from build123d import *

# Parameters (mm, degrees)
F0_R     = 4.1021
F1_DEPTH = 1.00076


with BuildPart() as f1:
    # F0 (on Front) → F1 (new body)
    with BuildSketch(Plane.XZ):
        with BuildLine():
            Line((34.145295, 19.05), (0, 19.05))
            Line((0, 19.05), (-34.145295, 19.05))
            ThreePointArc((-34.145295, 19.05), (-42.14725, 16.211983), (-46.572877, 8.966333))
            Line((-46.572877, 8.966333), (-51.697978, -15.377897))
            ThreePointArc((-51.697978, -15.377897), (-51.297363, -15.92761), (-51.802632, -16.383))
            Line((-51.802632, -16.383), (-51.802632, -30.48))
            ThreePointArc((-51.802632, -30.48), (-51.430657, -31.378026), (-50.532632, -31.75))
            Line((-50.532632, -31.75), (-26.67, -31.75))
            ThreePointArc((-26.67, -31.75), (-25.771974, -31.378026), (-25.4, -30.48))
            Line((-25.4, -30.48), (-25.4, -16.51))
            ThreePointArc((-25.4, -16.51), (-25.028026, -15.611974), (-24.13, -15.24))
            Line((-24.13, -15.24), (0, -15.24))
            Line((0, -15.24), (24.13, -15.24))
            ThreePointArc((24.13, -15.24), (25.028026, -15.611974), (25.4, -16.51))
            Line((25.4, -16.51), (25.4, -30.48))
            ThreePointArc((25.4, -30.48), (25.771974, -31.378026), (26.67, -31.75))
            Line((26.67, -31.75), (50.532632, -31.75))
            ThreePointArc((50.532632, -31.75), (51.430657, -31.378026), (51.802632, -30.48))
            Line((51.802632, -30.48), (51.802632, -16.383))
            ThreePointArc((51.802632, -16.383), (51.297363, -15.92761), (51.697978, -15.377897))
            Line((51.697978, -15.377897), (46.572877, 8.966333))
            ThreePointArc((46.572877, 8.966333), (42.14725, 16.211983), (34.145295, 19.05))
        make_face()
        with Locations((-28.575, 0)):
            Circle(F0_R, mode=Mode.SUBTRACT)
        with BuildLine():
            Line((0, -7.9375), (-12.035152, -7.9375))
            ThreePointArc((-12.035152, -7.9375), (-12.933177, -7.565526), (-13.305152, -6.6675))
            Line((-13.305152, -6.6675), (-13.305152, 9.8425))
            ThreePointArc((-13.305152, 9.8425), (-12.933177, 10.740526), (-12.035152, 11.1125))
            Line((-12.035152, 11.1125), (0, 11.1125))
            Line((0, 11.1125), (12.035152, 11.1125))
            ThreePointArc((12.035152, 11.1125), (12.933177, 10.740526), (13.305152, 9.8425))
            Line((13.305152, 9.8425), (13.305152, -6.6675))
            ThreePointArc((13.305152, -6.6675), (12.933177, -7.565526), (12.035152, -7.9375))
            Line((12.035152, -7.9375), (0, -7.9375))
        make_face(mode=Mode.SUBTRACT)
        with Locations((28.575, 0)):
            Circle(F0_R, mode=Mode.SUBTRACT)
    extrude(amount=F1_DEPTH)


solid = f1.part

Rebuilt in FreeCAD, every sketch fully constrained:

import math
import FreeCAD as App
import Part
import Sketcher

V = App.Vector
Q = App.Units.Quantity

doc = App.newDocument("Part")
params = doc.addObject("Spreadsheet::Sheet", "Params")
for row, (alias, value) in enumerate([
    ("sketch1_radius", "0.5 in"),
    ("sketch1_radius2", "0.02 in"),
    ("sketch1_radius3", "0.05 in"),
    ("sketch1_diameter", "0.323 in"),
    ("sketch1_width", "1.9 in"),
    ("pad1_length", "0.0394 in"),
], start=1):
    params.set(f"A{row}", alias)
    params.set(f"B{row}", "=" + value)
    params.setAlias(f"B{row}", alias)

body = doc.addObject("PartDesign::Body", "Body")

# Sketch on XZ plane
sketch1 = body.newObject("Sketcher::SketchObject", "Sketch")
sketch1.AttachmentSupport = (doc.getObject("XZ_Plane"), [""])
sketch1.MapMode = "FlatFace"
sketch1.addGeometry(Part.LineSegment(V(34.145295, 19.05, 0), V(-34.145295, 19.05, 0)), False)
sketch1.addGeometry(Part.ArcOfCircle(Part.Circle(V(-34.145294, 6.35, 0), V(0, 0, 1), 12.7), math.radians(90.000003), math.radians(168.111341)), False)
sketch1.addGeometry(Part.LineSegment(V(-46.572877, 8.966333, 0), V(-51.697978, -15.377897, 0)), False)
sketch1.addGeometry(Part.ArcOfCircle(Part.Circle(V(-51.802631, -15.875, 0), V(0, 0, 1), 0.508), math.radians(-90.000079), math.radians(78.111341)), False)
sketch1.addGeometry(Part.LineSegment(V(-51.802632, -16.383, 0), V(-51.802632, -30.48, 0)), False)
sketch1.addGeometry(Part.ArcOfCircle(Part.Circle(V(-50.532632, -30.48, 0), V(0, 0, 1), 1.27), math.radians(-179.999983), math.radians(-90.000017)), False)
sketch1.addGeometry(Part.LineSegment(V(-50.532632, -31.75, 0), V(-26.67, -31.75, 0)), False)
sketch1.addGeometry(Part.ArcOfCircle(Part.Circle(V(-26.669999, -30.480001, 0), V(0, 0, 1), 1.269999), math.radians(-90.00006), math.radians(0.00006)), False)
sketch1.addGeometry(Part.LineSegment(V(-25.4, -30.48, 0), V(-25.4, -16.51, 0)), False)
sketch1.addGeometry(Part.ArcOfCircle(Part.Circle(V(-24.130001, -16.509999, 0), V(0, 0, 1), 1.269999), math.radians(89.99994), math.radians(180.00006)), False)
sketch1.addGeometry(Part.LineSegment(V(-24.13, -15.24, 0), V(24.13, -15.24, 0)), False)
sketch1.addGeometry(Part.ArcOfCircle(Part.Circle(V(24.130001, -16.509999, 0), V(0, 0, 1), 1.269999), math.radians(-0.00006), math.radians(90.00006)), False)
sketch1.addGeometry(Part.LineSegment(V(25.4, -16.51, 0), V(25.4, -30.48, 0)), False)
sketch1.addGeometry(Part.ArcOfCircle(Part.Circle(V(26.669999, -30.480001, 0), V(0, 0, 1), 1.269999), math.radians(179.99994), math.radians(270.00006)), False)
sketch1.addGeometry(Part.LineSegment(V(26.67, -31.75, 0), V(50.532632, -31.75, 0)), False)
sketch1.addGeometry(Part.ArcOfCircle(Part.Circle(V(50.532632, -30.48, 0), V(0, 0, 1), 1.27), math.radians(-89.999983), math.radians(-0.000017)), False)
sketch1.addGeometry(Part.LineSegment(V(51.802632, -30.48, 0), V(51.802632, -16.383, 0)), False)
sketch1.addGeometry(Part.ArcOfCircle(Part.Circle(V(51.802631, -15.875, 0), V(0, 0, 1), 0.508), math.radians(101.888659), math.radians(270.000079)), False)
sketch1.addGeometry(Part.LineSegment(V(51.697978, -15.377897, 0), V(46.572877, 8.966333, 0)), False)
sketch1.addGeometry(Part.ArcOfCircle(Part.Circle(V(34.145294, 6.35, 0), V(0, 0, 1), 12.7), math.radians(11.888659), math.radians(89.999997)), False)
sketch1.addGeometry(Part.Circle(V(-28.575, 0, 0), V(0, 0, 1), 4.1021), False)
sketch1.addGeometry(Part.Circle(V(28.575, 0, 0), V(0, 0, 1), 4.1021), False)
sketch1.addGeometry(Part.LineSegment(V(12.035152, -7.9375, 0), V(-12.035152, -7.9375, 0)), False)
sketch1.addGeometry(Part.ArcOfCircle(Part.Circle(V(-12.035152, -6.6675, 0), V(0, 0, 1), 1.27), math.radians(-179.999983), math.radians(-90.000017)), False)
sketch1.addGeometry(Part.LineSegment(V(-13.305152, -6.6675, 0), V(-13.305152, 9.8425, 0)), False)
sketch1.addGeometry(Part.ArcOfCircle(Part.Circle(V(-12.035152, 9.8425, 0), V(0, 0, 1), 1.27), math.radians(90.000017), math.radians(179.999983)), False)
sketch1.addGeometry(Part.LineSegment(V(-12.035152, 11.1125, 0), V(12.035152, 11.1125, 0)), False)
sketch1.addGeometry(Part.ArcOfCircle(Part.Circle(V(12.035152, 9.8425, 0), V(0, 0, 1), 1.27), math.radians(0.000017), math.radians(89.999983)), False)
sketch1.addGeometry(Part.LineSegment(V(13.305152, 9.8425, 0), V(13.305152, -6.6675, 0)), False)
sketch1.addGeometry(Part.ArcOfCircle(Part.Circle(V(12.035152, -6.6675, 0), V(0, 0, 1), 1.27), math.radians(-89.999983), math.radians(-0.000017)), False)
sketch1.addConstraint(Sketcher.Constraint("Tangent", 0, 2, 1, 1))
sketch1.addConstraint(Sketcher.Constraint("Tangent", 1, 2, 2, 1))
sketch1.addConstraint(Sketcher.Constraint("Coincident", 2, 2, 3, 2))
sketch1.addConstraint(Sketcher.Constraint("Coincident", 3, 1, 4, 1))
sketch1.addConstraint(Sketcher.Constraint("Tangent", 4, 2, 5, 1))
sketch1.addConstraint(Sketcher.Constraint("Tangent", 5, 2, 6, 1))
sketch1.addConstraint(Sketcher.Constraint("Tangent", 6, 2, 7, 1))
sketch1.addConstraint(Sketcher.Constraint("Tangent", 7, 2, 8, 1))
sketch1.addConstraint(Sketcher.Constraint("Tangent", 8, 2, 9, 2))
sketch1.addConstraint(Sketcher.Constraint("Tangent", 9, 1, 10, 1))
sketch1.addConstraint(Sketcher.Constraint("Tangent", 10, 2, 11, 2))
sketch1.addConstraint(Sketcher.Constraint("Tangent", 11, 1, 12, 1))
sketch1.addConstraint(Sketcher.Constraint("Tangent", 12, 2, 13, 1))
sketch1.addConstraint(Sketcher.Constraint("Tangent", 13, 2, 14, 1))
sketch1.addConstraint(Sketcher.Constraint("Tangent", 14, 2, 15, 1))
sketch1.addConstraint(Sketcher.Constraint("Tangent", 15, 2, 16, 1))
sketch1.addConstraint(Sketcher.Constraint("Coincident", 16, 2, 17, 2))
sketch1.addConstraint(Sketcher.Constraint("Coincident", 17, 1, 18, 1))
sketch1.addConstraint(Sketcher.Constraint("Tangent", 18, 2, 19, 1))
sketch1.addConstraint(Sketcher.Constraint("Tangent", 19, 2, 0, 1))
sketch1.addConstraint(Sketcher.Constraint("Tangent", 22, 2, 23, 2))
sketch1.addConstraint(Sketcher.Constraint("Tangent", 23, 1, 24, 1))
sketch1.addConstraint(Sketcher.Constraint("Tangent", 24, 2, 25, 2))
sketch1.addConstraint(Sketcher.Constraint("Tangent", 25, 1, 26, 1))
sketch1.addConstraint(Sketcher.Constraint("Tangent", 26, 2, 27, 2))
sketch1.addConstraint(Sketcher.Constraint("Tangent", 27, 1, 28, 1))
sketch1.addConstraint(Sketcher.Constraint("Tangent", 28, 2, 29, 2))
sketch1.addConstraint(Sketcher.Constraint("Tangent", 29, 1, 22, 1))
sketch1.addConstraint(Sketcher.Constraint("Horizontal", 0))
sketch1.addConstraint(Sketcher.Constraint("Vertical", 4))
sketch1.addConstraint(Sketcher.Constraint("Horizontal", 6))
sketch1.addConstraint(Sketcher.Constraint("Vertical", 8))
sketch1.addConstraint(Sketcher.Constraint("Horizontal", 10))
sketch1.addConstraint(Sketcher.Constraint("Vertical", 12))
sketch1.addConstraint(Sketcher.Constraint("Horizontal", 14))
sketch1.addConstraint(Sketcher.Constraint("Vertical", 16))
sketch1.addConstraint(Sketcher.Constraint("Horizontal", 22))
sketch1.addConstraint(Sketcher.Constraint("Vertical", 24))
sketch1.addConstraint(Sketcher.Constraint("Horizontal", 26))
sketch1.addConstraint(Sketcher.Constraint("Vertical", 28))
sketch1.addConstraint(Sketcher.Constraint("Equal", 5, 7))
sketch1.addConstraint(Sketcher.Constraint("Equal", 7, 9))
sketch1.addConstraint(Sketcher.Constraint("Equal", 9, 11))
sketch1.addConstraint(Sketcher.Constraint("Equal", 11, 13))
sketch1.addConstraint(Sketcher.Constraint("Equal", 13, 15))
sketch1.addConstraint(Sketcher.Constraint("Equal", 3, 17))
sketch1.addConstraint(Sketcher.Constraint("Equal", 1, 19))
sketch1.addConstraint(Sketcher.Constraint("Equal", 20, 21))
sketch1.addConstraint(Sketcher.Constraint("Equal", 15, 23))
sketch1.addConstraint(Sketcher.Constraint("Equal", 23, 25))
sketch1.addConstraint(Sketcher.Constraint("Equal", 25, 27))
sketch1.addConstraint(Sketcher.Constraint("Equal", 27, 29))
sketch1.addConstraint(Sketcher.Constraint("Symmetric", 20, 3, 21, 3, -1, 1))
sketch1.addConstraint(Sketcher.Constraint("Symmetric", 7, 3, 13, 3, -2))
sketch1.addConstraint(Sketcher.Constraint("Symmetric", 3, 3, 17, 3, -2))
sketch1.addConstraint(Sketcher.Constraint("Symmetric", 1, 2, 18, 2, -2))
sketch1.addConstraint(Sketcher.Constraint("PointOnObject", 20, 3, -1))
sketch1.addConstraint(Sketcher.Constraint("Vertical", 17, 3, 15, 2))
sketch1.addConstraint(Sketcher.Constraint("Equal", 6, 14))
sketch1.addConstraint(Sketcher.Constraint("Radius", 1, Q("0.5 in")))
sketch1.addConstraint(Sketcher.Constraint("Radius", 3, Q("0.02 in")))
sketch1.addConstraint(Sketcher.Constraint("Radius", 5, Q("0.05 in")))
sketch1.addConstraint(Sketcher.Constraint("Diameter", 20, Q("0.323 in")))
sketch1.addConstraint(Sketcher.Constraint("DistanceX", 10, 1, 10, 2, Q("1.9 in")))
sketch1.addConstraint(Sketcher.Constraint("DistanceY", 8, 1, 8, 2, Q("0.55 in")))
sketch1.addConstraint(Sketcher.Constraint("DistanceY", 24, 1, 24, 2, Q("0.65 in")))
sketch1.addConstraint(Sketcher.Constraint("DistanceY", 5, 3, -1, 1, Q("1.2 in")))
sketch1.addConstraint(Sketcher.Constraint("DistanceY", 9, 3, 1, 3, Q("0.8999999 in")))
sketch1.addConstraint(Sketcher.Constraint("DistanceY", 4, 2, 4, 1, Q("0.555 in")))
sketch1.addConstraint(Sketcher.Constraint("DistanceX", 20, 3, -1, 1, Q("1.125 in")))
sketch1.addConstraint(Sketcher.Constraint("DistanceY", 22, 2, -1, 1, Q("0.3125 in")))
sketch1.addConstraint(Sketcher.Constraint("DistanceX", 0, 2, 0, 1, Q("68.29059 mm")))
sketch1.addConstraint(Sketcher.Constraint("DistanceX", 6, 1, 6, 2, Q("23.862632 mm")))
sketch1.addConstraint(Sketcher.Constraint("DistanceX", 2, 2, 1, 2, Q("5.125101 mm")))
sketch1.addConstraint(Sketcher.Constraint("DistanceX", 22, 2, 22, 1, Q("24.070304 mm")))
sketch1.addConstraint(Sketcher.Constraint("DistanceX", 23, 3, -1, 1, Q("12.035152 mm")))
sketch1.setExpression("Constraints[59]", "Params.sketch1_radius")
sketch1.setExpression("Constraints[60]", "Params.sketch1_radius2")
sketch1.setExpression("Constraints[61]", "Params.sketch1_radius3")
sketch1.setExpression("Constraints[62]", "Params.sketch1_diameter")
sketch1.setExpression("Constraints[63]", "Params.sketch1_width")
pad1 = body.newObject("PartDesign::Pad", "Pad")
pad1.Profile = sketch1
pad1.setExpression("Length", "Params.pad1_length")

doc.recompute()
